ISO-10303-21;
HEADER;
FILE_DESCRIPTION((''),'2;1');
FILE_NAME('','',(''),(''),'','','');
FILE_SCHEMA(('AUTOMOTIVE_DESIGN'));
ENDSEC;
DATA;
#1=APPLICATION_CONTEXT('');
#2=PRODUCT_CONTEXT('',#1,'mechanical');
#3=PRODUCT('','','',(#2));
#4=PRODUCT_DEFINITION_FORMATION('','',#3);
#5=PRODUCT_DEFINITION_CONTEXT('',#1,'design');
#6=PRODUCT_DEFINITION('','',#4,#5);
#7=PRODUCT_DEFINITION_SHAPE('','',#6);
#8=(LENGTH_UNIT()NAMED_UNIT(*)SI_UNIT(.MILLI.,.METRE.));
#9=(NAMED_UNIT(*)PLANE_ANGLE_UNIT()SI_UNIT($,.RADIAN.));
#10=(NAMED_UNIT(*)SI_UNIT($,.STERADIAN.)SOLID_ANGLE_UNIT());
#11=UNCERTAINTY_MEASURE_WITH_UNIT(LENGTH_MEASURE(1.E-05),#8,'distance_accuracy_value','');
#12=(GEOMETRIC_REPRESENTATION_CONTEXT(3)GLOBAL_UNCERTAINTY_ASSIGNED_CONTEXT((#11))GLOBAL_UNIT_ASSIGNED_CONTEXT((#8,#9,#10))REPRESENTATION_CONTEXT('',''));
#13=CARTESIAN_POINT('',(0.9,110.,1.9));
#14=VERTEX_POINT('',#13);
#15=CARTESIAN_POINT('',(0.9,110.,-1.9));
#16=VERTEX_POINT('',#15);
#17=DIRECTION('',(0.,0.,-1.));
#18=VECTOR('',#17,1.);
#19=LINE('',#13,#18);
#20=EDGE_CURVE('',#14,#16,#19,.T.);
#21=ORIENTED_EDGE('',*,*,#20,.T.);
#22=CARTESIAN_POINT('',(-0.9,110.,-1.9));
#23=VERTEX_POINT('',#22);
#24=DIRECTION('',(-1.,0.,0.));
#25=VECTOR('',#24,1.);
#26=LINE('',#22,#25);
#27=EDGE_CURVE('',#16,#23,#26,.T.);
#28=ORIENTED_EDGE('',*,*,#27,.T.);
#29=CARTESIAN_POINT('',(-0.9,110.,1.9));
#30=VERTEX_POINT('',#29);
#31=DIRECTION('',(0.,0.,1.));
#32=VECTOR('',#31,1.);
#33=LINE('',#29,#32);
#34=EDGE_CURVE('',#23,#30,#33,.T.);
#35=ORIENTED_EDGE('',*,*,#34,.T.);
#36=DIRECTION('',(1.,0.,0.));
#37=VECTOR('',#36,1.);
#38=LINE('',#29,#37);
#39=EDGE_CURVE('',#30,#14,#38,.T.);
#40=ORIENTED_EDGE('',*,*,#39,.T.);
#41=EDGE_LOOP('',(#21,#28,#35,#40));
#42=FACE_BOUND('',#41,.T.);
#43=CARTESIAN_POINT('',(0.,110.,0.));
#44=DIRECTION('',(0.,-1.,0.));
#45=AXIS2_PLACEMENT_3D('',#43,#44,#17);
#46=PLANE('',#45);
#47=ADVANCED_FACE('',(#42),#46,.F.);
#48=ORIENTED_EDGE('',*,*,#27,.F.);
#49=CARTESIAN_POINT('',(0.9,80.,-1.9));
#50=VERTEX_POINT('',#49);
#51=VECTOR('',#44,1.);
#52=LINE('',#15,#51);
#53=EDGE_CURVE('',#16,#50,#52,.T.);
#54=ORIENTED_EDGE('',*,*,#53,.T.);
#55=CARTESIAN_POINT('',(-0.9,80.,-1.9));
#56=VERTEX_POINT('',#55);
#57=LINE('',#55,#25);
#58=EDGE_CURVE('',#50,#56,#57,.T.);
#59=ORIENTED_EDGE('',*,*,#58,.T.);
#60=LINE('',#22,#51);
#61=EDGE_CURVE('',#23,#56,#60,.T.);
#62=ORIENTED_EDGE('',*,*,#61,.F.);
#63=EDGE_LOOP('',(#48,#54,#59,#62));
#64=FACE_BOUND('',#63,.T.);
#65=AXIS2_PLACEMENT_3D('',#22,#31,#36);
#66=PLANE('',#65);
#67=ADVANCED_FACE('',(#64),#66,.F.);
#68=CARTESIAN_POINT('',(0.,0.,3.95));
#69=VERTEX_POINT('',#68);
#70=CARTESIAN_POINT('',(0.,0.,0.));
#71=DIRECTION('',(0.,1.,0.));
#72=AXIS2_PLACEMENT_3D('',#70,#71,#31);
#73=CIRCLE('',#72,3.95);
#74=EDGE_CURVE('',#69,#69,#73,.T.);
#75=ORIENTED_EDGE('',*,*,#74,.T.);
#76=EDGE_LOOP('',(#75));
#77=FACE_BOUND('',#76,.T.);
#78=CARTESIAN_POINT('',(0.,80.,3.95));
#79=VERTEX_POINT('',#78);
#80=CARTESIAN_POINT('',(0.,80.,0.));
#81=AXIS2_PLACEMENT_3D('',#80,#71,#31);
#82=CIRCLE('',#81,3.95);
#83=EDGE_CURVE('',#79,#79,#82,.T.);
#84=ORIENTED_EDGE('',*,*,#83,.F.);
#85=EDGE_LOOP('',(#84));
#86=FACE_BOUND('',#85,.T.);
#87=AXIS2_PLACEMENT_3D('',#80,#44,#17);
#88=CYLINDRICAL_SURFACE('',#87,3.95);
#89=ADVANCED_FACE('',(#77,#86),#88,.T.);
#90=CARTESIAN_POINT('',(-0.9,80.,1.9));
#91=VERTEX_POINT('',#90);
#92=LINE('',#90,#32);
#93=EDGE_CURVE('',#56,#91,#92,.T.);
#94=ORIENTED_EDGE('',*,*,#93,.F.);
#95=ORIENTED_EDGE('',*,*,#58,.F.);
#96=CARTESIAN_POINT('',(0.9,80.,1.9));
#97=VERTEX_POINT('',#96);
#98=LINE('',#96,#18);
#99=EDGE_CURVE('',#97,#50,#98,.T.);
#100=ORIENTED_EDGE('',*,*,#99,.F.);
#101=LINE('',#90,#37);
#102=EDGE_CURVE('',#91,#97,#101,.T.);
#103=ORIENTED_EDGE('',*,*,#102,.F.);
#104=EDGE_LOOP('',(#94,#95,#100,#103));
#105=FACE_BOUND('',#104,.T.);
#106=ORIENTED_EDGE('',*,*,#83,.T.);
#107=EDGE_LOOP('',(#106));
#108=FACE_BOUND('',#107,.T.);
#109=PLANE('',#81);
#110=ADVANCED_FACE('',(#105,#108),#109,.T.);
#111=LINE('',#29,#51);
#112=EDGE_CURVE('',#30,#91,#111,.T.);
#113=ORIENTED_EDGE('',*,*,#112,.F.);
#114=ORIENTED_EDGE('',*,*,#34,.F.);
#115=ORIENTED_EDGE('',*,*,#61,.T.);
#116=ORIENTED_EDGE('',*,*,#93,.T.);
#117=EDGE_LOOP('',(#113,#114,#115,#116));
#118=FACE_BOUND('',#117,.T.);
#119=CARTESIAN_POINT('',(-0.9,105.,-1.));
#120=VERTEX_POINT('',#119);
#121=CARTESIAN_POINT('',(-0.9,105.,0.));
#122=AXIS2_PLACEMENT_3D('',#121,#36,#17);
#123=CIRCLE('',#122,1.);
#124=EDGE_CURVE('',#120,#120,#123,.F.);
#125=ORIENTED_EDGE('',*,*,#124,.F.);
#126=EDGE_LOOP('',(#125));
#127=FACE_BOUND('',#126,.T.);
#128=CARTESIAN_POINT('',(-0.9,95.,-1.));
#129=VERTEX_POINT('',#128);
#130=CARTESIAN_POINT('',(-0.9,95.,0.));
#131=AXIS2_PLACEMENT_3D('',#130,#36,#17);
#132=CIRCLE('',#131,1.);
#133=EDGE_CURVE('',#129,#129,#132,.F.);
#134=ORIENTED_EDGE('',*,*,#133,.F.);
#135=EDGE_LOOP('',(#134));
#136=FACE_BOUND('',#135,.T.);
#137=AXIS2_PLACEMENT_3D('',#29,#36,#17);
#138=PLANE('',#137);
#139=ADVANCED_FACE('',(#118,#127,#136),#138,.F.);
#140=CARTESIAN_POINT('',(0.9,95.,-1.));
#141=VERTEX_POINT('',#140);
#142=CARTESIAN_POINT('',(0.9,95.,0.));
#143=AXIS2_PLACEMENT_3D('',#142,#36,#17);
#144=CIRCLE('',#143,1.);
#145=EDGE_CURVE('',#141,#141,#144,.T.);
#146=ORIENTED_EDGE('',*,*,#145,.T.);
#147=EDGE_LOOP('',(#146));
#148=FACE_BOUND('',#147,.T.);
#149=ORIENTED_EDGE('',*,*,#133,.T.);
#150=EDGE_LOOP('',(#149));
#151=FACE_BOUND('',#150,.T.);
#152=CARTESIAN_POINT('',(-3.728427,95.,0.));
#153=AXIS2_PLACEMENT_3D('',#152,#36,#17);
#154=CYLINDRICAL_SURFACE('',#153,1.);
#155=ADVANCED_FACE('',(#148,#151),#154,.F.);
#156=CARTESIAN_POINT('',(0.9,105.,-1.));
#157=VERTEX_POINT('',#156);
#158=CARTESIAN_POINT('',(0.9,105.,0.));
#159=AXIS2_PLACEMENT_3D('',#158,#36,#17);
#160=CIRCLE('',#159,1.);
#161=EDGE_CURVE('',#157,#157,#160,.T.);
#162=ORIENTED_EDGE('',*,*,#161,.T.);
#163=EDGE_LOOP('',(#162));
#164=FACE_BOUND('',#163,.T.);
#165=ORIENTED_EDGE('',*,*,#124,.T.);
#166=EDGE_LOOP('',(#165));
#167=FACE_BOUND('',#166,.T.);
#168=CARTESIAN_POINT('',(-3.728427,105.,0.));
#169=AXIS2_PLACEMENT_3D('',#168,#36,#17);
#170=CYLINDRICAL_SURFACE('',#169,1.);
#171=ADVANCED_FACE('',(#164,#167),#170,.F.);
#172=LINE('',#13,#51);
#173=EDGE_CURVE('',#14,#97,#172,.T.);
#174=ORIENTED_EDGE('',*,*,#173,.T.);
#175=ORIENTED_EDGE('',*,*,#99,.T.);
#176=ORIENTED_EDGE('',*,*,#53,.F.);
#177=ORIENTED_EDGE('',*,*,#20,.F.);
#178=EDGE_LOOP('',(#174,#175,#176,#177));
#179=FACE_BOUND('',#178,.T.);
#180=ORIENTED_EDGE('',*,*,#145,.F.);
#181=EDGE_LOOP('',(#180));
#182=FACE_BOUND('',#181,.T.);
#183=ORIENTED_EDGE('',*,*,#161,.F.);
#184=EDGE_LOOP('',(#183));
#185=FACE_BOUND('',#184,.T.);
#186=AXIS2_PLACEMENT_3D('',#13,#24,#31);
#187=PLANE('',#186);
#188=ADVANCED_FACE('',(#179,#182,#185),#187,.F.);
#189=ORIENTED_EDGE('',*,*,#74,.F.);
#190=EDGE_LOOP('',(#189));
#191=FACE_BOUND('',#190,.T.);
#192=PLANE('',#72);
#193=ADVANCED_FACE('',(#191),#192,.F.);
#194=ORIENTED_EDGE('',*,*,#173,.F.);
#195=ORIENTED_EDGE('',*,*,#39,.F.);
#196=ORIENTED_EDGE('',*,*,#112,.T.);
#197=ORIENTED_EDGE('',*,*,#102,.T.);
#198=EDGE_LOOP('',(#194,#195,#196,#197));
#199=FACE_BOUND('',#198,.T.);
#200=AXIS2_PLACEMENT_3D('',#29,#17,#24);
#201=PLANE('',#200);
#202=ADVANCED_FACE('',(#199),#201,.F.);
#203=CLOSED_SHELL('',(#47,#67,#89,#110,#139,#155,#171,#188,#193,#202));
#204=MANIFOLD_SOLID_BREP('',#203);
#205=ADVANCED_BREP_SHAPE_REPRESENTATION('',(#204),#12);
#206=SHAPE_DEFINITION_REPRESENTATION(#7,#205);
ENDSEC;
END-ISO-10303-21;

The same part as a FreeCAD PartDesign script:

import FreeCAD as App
import Part
import Sketcher
from FreeCAD import Vector
Q = App.Units.Quantity

doc = App.newDocument("Part")
body = doc.addObject("PartDesign::Body", "Body")

sketch1 = doc.addObject("Sketcher::SketchObject", "Sketch")
body.addObject(sketch1)
sketch1.AttachmentSupport = (doc.XZ_Plane, [""])
sketch1.MapMode = "FlatFace"
sketch1.addGeometry(Part.Circle(Vector(0, 0, 0), Vector(0, 0, 1), 4), False)
sketch1.addConstraint(Sketcher.Constraint("Coincident", 0, 3, -1, 1))
sketch1.addConstraint(Sketcher.Constraint("Diameter", 0, Q("7.9 mm")))
pad1 = doc.addObject("PartDesign::Pad", "Pad")
body.addObject(pad1)
pad1.Profile = sketch1
pad1.Length = 80
pad1.Reversed = True

sketch2 = doc.addObject("Sketcher::SketchObject", "Sketch001")
body.addObject(sketch2)
sketch2.AttachmentSupport = (doc.XZ_Plane, [""])
sketch2.MapMode = "FlatFace"
sketch2.AttachmentOffset = App.Placement(Vector(0, 0, -80), App.Rotation())
sketch2.addGeometry(Part.LineSegment(Vector(-0.9, -1.9, 0), Vector(-0.9, 1.9, 0)), False)
sketch2.addGeometry(Part.LineSegment(Vector(-0.9, 1.9, 0), Vector(0.9, 1.9, 0)), False)
sketch2.addGeometry(Part.LineSegment(Vector(0.9, 1.9, 0), Vector(0.9, -1.9, 0)), False)
sketch2.addGeometry(Part.LineSegment(Vector(0.9, -1.9, 0), Vector(-0.9, -1.9, 0)), False)
sketch2.addConstraint(Sketcher.Constraint("Coincident", 0, 2, 1, 1))
sketch2.addConstraint(Sketcher.Constraint("Coincident", 1, 2, 2, 1))
sketch2.addConstraint(Sketcher.Constraint("Coincident", 2, 2, 3, 1))
sketch2.addConstraint(Sketcher.Constraint("Coincident", 3, 2, 0, 1))
sketch2.addConstraint(Sketcher.Constraint("Vertical", 0))
sketch2.addConstraint(Sketcher.Constraint("Horizontal", 1))
sketch2.addConstraint(Sketcher.Constraint("Vertical", 2))
sketch2.addConstraint(Sketcher.Constraint("Horizontal", 3))
sketch2.addConstraint(Sketcher.Constraint("Symmetric", 0, 2, 2, 2, -1, 1))
sketch2.addConstraint(Sketcher.Constraint("DistanceX", 1, 1, 1, 2, Q("1.8 mm")))
sketch2.addConstraint(Sketcher.Constraint("DistanceY", 0, 1, 0, 2, Q("3.8 mm")))
pad2 = doc.addObject("PartDesign::Pad", "Pad001")
body.addObject(pad2)
pad2.Profile = sketch2
pad2.Length = 30
pad2.Reversed = True

sketch3 = doc.addObject("Sketcher::SketchObject", "Sketch002")
body.addObject(sketch3)
sketch3.AttachmentSupport = (doc.YZ_Plane, [""])
sketch3.MapMode = "FlatFace"
sketch3.AttachmentOffset = App.Placement(Vector(0, 0, 0.9), App.Rotation())
sketch3.addGeometry(Part.Circle(Vector(105, 0, 0), Vector(0, 0, 1), 1), False)
sketch3.addGeometry(Part.Circle(Vector(95, 0, 0), Vector(0, 0, 1), 1), False)
sketch3.addConstraint(Sketcher.Constraint("Equal", 0, 1))
sketch3.addConstraint(Sketcher.Constraint("PointOnObject", 0, 3, -1))
sketch3.addConstraint(Sketcher.Constraint("PointOnObject", 1, 3, -1))
sketch3.addConstraint(Sketcher.Constraint("Diameter", 0, Q("2 mm")))
sketch3.addConstraint(Sketcher.Constraint("DistanceX", -1, 1, 0, 3, Q("105 mm")))
sketch3.addConstraint(Sketcher.Constraint("DistanceX", -1, 1, 1, 3, Q("95 mm")))
pocket1 = doc.addObject("PartDesign::Pocket", "Pocket")
body.addObject(pocket1)
pocket1.Profile = sketch3
pocket1.Length = 1.8

doc.recompute()
